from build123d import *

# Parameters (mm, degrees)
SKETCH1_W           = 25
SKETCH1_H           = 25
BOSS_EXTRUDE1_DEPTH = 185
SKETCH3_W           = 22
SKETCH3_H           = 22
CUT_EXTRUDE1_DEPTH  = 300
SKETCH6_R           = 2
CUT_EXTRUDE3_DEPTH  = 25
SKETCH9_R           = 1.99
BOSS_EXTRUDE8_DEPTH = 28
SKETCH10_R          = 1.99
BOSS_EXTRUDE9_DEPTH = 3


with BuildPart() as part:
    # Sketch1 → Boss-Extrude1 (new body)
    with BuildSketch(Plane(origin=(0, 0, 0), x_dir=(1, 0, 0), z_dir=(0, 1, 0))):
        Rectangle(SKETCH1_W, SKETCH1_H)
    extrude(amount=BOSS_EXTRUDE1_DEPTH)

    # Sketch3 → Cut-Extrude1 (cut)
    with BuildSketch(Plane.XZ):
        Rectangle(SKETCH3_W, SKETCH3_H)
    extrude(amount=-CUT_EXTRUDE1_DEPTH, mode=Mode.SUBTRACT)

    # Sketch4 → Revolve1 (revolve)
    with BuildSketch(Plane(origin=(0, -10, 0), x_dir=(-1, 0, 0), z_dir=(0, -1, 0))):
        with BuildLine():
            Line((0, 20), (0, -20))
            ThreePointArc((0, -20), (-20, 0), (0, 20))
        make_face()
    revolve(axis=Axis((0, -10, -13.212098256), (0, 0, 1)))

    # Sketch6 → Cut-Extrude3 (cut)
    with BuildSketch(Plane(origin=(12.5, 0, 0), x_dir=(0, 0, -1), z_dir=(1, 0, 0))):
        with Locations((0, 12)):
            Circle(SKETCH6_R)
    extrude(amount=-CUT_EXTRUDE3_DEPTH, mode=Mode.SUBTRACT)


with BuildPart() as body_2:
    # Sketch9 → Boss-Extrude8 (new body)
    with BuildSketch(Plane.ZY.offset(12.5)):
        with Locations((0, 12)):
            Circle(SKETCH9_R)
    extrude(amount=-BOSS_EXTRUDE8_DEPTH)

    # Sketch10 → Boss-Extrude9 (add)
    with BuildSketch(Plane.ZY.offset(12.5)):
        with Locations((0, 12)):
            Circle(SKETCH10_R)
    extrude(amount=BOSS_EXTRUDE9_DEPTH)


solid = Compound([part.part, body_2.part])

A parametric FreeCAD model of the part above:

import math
import FreeCAD as App
import Part
import Sketcher
from FreeCAD import Vector

doc = App.newDocument("Part")
body = doc.addObject("PartDesign::Body", "Body")

# Sketch on XZ plane
sketch1 = body.newObject("Sketcher::SketchObject", "Sketch")
sketch1.AttachmentSupport = (doc.getObject("XZ_Plane"), [""])
sketch1.MapMode = "FlatFace"
sketch1.addGeometry([
    Part.LineSegment(Vector(-12, -12, 0), Vector(-12, 12, 0)),
    Part.LineSegment(Vector(-12, 12, 0), Vector(12, 12, 0)),
    Part.LineSegment(Vector(12, 12, 0), Vector(12, -12, 0)),
    Part.LineSegment(Vector(12, -12, 0), Vector(-12, -12, 0)),
], False)
sketch1.addConstraint([
    Sketcher.Constraint("Coincident", 0, 2, 1, 1),
    Sketcher.Constraint("Coincident", 1, 2, 2, 1),
    Sketcher.Constraint("Coincident", 2, 2, 3, 1),
    Sketcher.Constraint("Coincident", 3, 2, 0, 1),
    Sketcher.Constraint("Vertical", 0),
    Sketcher.Constraint("Horizontal", 1),
    Sketcher.Constraint("Vertical", 2),
    Sketcher.Constraint("Horizontal", 3),
    Sketcher.Constraint("Symmetric", 0, 2, 2, 2, -1, 1),
    Sketcher.Constraint("Equal", 3, 0),
    Sketcher.Constraint("DistanceX", 1, 1, 1, 2, 25.0),
])
pad1 = body.newObject("PartDesign::Pad", "Pad")
pad1.Profile = sketch1
pad1.Length = 185
pad1.Reversed = True

# Sketch on XZ plane
sketch2 = body.newObject("Sketcher::SketchObject", "Sketch001")
sketch2.AttachmentSupport = (doc.getObject("XZ_Plane"), [""])
sketch2.MapMode = "FlatFace"
sketch2.addGeometry([
    Part.LineSegment(Vector(-11, 11, 0), Vector(-11, -11, 0)),
    Part.LineSegment(Vector(-11, -11, 0), Vector(11, -11, 0)),
    Part.LineSegment(Vector(11, -11, 0), Vector(11, 11, 0)),
    Part.LineSegment(Vector(11, 11, 0), Vector(-11, 11, 0)),
], False)
sketch2.addConstraint([
    Sketcher.Constraint("Coincident", 0, 2, 1, 1),
    Sketcher.Constraint("Coincident", 1, 2, 2, 1),
    Sketcher.Constraint("Coincident", 2, 2, 3, 1),
    Sketcher.Constraint("Coincident", 3, 2, 0, 1),
    Sketcher.Constraint("Vertical", 0),
    Sketcher.Constraint("Horizontal", 1),
    Sketcher.Constraint("Vertical", 2),
    Sketcher.Constraint("Horizontal", 3),
    Sketcher.Constraint("Symmetric", 0, 2, 2, 2, -1, 1),
    Sketcher.Constraint("Equal", 3, 0),
    Sketcher.Constraint("DistanceX", 1, 1, 1, 2, 22.0),
])
pocket1 = body.newObject("PartDesign::Pocket", "Pocket")
pocket1.Profile = sketch2
pocket1.Length = 300

# Sketch on XZ plane
sketch3 = body.newObject("Sketcher::SketchObject", "Sketch002")
sketch3.AttachmentSupport = (doc.getObject("XZ_Plane"), [""])
sketch3.MapMode = "FlatFace"
sketch3.AttachmentOffset = App.Placement(Vector(0, 0, 10), App.Rotation())
sketch3.addGeometry([
    Part.LineSegment(Vector(0, 20, 0), Vector(0, -20, 0)),
    Part.ArcOfCircle(Part.Circle(Vector(0, 0, 0), Vector(0, 0, 1), 20), math.radians(-90), math.radians(90)),
], False)
sketch3.addConstraint([
    Sketcher.Constraint("Coincident", 0, 1, 1, 2),
    Sketcher.Constraint("Coincident", 1, 1, 0, 2),
    Sketcher.Constraint("Vertical", 0),
    Sketcher.Constraint("Coincident", 1, 3, -1, 1),
    Sketcher.Constraint("PointOnObject", 0, 1, -2),
    Sketcher.Constraint("Radius", 1, 20.0),
])
revolution = body.newObject("PartDesign::Revolution", "Revolution")
revolution.Profile = sketch3
revolution.ReferenceAxis = (sketch3, ["V_Axis"])
revolution.Angle = 360

# Sketch on YZ plane
sketch4 = body.newObject("Sketcher::SketchObject", "Sketch003")
sketch4.AttachmentSupport = (doc.getObject("YZ_Plane"), [""])
sketch4.MapMode = "FlatFace"
sketch4.AttachmentOffset = App.Placement(Vector(0, 0, 12.5), App.Rotation())
sketch4.addGeometry(Part.Circle(Vector(12, 0, 0), Vector(0, 0, 1), 2), False)
sketch4.addConstraint([
    Sketcher.Constraint("PointOnObject", 0, 3, -1),
    Sketcher.Constraint("Diameter", 0, 4.0),
    Sketcher.Constraint("DistanceX", -1, 1, 0, 3, 12.0),
])
pocket2 = body.newObject("PartDesign::Pocket", "Pocket001")
pocket2.Profile = sketch4
pocket2.Length = 25
body2 = doc.addObject("PartDesign::Body", "Body001")

# Sketch on YZ plane
sketch5 = body2.newObject("Sketcher::SketchObject", "Sketch004")
sketch5.AttachmentSupport = (doc.getObject("YZ_Plane001"), [""])
sketch5.MapMode = "FlatFace"
sketch5.AttachmentOffset = App.Placement(Vector(0, 0, -12.5), App.Rotation())
sketch5.addGeometry(Part.Circle(Vector(12, 0, 0), Vector(0, 0, 1), 2), False)
sketch5.addConstraint([
    Sketcher.Constraint("PointOnObject", 0, 3, -1),
    Sketcher.Constraint("Diameter", 0, 3.98),
    Sketcher.Constraint("DistanceX", -1, 1, 0, 3, 12.0),
])
pad2 = body2.newObject("PartDesign::Pad", "Pad001")
pad2.Profile = sketch5
pad2.Length = 28

# Sketch on YZ plane
sketch6 = body2.newObject("Sketcher::SketchObject", "Sketch005")
sketch6.AttachmentSupport = (doc.getObject("YZ_Plane001"), [""])
sketch6.MapMode = "FlatFace"
sketch6.AttachmentOffset = App.Placement(Vector(0, 0, -12.5), App.Rotation())
sketch6.addGeometry(Part.Circle(Vector(12, 0, 0), Vector(0, 0, 1), 2), False)
sketch6.addConstraint([
    Sketcher.Constraint("PointOnObject", 0, 3, -1),
    Sketcher.Constraint("Diameter", 0, 3.98),
    Sketcher.Constraint("DistanceX", -1, 1, 0, 3, 12.0),
])
pad3 = body2.newObject("PartDesign::Pad", "Pad002")
pad3.Profile = sketch6
pad3.Length = 3
pad3.Reversed = True

doc.recompute()
